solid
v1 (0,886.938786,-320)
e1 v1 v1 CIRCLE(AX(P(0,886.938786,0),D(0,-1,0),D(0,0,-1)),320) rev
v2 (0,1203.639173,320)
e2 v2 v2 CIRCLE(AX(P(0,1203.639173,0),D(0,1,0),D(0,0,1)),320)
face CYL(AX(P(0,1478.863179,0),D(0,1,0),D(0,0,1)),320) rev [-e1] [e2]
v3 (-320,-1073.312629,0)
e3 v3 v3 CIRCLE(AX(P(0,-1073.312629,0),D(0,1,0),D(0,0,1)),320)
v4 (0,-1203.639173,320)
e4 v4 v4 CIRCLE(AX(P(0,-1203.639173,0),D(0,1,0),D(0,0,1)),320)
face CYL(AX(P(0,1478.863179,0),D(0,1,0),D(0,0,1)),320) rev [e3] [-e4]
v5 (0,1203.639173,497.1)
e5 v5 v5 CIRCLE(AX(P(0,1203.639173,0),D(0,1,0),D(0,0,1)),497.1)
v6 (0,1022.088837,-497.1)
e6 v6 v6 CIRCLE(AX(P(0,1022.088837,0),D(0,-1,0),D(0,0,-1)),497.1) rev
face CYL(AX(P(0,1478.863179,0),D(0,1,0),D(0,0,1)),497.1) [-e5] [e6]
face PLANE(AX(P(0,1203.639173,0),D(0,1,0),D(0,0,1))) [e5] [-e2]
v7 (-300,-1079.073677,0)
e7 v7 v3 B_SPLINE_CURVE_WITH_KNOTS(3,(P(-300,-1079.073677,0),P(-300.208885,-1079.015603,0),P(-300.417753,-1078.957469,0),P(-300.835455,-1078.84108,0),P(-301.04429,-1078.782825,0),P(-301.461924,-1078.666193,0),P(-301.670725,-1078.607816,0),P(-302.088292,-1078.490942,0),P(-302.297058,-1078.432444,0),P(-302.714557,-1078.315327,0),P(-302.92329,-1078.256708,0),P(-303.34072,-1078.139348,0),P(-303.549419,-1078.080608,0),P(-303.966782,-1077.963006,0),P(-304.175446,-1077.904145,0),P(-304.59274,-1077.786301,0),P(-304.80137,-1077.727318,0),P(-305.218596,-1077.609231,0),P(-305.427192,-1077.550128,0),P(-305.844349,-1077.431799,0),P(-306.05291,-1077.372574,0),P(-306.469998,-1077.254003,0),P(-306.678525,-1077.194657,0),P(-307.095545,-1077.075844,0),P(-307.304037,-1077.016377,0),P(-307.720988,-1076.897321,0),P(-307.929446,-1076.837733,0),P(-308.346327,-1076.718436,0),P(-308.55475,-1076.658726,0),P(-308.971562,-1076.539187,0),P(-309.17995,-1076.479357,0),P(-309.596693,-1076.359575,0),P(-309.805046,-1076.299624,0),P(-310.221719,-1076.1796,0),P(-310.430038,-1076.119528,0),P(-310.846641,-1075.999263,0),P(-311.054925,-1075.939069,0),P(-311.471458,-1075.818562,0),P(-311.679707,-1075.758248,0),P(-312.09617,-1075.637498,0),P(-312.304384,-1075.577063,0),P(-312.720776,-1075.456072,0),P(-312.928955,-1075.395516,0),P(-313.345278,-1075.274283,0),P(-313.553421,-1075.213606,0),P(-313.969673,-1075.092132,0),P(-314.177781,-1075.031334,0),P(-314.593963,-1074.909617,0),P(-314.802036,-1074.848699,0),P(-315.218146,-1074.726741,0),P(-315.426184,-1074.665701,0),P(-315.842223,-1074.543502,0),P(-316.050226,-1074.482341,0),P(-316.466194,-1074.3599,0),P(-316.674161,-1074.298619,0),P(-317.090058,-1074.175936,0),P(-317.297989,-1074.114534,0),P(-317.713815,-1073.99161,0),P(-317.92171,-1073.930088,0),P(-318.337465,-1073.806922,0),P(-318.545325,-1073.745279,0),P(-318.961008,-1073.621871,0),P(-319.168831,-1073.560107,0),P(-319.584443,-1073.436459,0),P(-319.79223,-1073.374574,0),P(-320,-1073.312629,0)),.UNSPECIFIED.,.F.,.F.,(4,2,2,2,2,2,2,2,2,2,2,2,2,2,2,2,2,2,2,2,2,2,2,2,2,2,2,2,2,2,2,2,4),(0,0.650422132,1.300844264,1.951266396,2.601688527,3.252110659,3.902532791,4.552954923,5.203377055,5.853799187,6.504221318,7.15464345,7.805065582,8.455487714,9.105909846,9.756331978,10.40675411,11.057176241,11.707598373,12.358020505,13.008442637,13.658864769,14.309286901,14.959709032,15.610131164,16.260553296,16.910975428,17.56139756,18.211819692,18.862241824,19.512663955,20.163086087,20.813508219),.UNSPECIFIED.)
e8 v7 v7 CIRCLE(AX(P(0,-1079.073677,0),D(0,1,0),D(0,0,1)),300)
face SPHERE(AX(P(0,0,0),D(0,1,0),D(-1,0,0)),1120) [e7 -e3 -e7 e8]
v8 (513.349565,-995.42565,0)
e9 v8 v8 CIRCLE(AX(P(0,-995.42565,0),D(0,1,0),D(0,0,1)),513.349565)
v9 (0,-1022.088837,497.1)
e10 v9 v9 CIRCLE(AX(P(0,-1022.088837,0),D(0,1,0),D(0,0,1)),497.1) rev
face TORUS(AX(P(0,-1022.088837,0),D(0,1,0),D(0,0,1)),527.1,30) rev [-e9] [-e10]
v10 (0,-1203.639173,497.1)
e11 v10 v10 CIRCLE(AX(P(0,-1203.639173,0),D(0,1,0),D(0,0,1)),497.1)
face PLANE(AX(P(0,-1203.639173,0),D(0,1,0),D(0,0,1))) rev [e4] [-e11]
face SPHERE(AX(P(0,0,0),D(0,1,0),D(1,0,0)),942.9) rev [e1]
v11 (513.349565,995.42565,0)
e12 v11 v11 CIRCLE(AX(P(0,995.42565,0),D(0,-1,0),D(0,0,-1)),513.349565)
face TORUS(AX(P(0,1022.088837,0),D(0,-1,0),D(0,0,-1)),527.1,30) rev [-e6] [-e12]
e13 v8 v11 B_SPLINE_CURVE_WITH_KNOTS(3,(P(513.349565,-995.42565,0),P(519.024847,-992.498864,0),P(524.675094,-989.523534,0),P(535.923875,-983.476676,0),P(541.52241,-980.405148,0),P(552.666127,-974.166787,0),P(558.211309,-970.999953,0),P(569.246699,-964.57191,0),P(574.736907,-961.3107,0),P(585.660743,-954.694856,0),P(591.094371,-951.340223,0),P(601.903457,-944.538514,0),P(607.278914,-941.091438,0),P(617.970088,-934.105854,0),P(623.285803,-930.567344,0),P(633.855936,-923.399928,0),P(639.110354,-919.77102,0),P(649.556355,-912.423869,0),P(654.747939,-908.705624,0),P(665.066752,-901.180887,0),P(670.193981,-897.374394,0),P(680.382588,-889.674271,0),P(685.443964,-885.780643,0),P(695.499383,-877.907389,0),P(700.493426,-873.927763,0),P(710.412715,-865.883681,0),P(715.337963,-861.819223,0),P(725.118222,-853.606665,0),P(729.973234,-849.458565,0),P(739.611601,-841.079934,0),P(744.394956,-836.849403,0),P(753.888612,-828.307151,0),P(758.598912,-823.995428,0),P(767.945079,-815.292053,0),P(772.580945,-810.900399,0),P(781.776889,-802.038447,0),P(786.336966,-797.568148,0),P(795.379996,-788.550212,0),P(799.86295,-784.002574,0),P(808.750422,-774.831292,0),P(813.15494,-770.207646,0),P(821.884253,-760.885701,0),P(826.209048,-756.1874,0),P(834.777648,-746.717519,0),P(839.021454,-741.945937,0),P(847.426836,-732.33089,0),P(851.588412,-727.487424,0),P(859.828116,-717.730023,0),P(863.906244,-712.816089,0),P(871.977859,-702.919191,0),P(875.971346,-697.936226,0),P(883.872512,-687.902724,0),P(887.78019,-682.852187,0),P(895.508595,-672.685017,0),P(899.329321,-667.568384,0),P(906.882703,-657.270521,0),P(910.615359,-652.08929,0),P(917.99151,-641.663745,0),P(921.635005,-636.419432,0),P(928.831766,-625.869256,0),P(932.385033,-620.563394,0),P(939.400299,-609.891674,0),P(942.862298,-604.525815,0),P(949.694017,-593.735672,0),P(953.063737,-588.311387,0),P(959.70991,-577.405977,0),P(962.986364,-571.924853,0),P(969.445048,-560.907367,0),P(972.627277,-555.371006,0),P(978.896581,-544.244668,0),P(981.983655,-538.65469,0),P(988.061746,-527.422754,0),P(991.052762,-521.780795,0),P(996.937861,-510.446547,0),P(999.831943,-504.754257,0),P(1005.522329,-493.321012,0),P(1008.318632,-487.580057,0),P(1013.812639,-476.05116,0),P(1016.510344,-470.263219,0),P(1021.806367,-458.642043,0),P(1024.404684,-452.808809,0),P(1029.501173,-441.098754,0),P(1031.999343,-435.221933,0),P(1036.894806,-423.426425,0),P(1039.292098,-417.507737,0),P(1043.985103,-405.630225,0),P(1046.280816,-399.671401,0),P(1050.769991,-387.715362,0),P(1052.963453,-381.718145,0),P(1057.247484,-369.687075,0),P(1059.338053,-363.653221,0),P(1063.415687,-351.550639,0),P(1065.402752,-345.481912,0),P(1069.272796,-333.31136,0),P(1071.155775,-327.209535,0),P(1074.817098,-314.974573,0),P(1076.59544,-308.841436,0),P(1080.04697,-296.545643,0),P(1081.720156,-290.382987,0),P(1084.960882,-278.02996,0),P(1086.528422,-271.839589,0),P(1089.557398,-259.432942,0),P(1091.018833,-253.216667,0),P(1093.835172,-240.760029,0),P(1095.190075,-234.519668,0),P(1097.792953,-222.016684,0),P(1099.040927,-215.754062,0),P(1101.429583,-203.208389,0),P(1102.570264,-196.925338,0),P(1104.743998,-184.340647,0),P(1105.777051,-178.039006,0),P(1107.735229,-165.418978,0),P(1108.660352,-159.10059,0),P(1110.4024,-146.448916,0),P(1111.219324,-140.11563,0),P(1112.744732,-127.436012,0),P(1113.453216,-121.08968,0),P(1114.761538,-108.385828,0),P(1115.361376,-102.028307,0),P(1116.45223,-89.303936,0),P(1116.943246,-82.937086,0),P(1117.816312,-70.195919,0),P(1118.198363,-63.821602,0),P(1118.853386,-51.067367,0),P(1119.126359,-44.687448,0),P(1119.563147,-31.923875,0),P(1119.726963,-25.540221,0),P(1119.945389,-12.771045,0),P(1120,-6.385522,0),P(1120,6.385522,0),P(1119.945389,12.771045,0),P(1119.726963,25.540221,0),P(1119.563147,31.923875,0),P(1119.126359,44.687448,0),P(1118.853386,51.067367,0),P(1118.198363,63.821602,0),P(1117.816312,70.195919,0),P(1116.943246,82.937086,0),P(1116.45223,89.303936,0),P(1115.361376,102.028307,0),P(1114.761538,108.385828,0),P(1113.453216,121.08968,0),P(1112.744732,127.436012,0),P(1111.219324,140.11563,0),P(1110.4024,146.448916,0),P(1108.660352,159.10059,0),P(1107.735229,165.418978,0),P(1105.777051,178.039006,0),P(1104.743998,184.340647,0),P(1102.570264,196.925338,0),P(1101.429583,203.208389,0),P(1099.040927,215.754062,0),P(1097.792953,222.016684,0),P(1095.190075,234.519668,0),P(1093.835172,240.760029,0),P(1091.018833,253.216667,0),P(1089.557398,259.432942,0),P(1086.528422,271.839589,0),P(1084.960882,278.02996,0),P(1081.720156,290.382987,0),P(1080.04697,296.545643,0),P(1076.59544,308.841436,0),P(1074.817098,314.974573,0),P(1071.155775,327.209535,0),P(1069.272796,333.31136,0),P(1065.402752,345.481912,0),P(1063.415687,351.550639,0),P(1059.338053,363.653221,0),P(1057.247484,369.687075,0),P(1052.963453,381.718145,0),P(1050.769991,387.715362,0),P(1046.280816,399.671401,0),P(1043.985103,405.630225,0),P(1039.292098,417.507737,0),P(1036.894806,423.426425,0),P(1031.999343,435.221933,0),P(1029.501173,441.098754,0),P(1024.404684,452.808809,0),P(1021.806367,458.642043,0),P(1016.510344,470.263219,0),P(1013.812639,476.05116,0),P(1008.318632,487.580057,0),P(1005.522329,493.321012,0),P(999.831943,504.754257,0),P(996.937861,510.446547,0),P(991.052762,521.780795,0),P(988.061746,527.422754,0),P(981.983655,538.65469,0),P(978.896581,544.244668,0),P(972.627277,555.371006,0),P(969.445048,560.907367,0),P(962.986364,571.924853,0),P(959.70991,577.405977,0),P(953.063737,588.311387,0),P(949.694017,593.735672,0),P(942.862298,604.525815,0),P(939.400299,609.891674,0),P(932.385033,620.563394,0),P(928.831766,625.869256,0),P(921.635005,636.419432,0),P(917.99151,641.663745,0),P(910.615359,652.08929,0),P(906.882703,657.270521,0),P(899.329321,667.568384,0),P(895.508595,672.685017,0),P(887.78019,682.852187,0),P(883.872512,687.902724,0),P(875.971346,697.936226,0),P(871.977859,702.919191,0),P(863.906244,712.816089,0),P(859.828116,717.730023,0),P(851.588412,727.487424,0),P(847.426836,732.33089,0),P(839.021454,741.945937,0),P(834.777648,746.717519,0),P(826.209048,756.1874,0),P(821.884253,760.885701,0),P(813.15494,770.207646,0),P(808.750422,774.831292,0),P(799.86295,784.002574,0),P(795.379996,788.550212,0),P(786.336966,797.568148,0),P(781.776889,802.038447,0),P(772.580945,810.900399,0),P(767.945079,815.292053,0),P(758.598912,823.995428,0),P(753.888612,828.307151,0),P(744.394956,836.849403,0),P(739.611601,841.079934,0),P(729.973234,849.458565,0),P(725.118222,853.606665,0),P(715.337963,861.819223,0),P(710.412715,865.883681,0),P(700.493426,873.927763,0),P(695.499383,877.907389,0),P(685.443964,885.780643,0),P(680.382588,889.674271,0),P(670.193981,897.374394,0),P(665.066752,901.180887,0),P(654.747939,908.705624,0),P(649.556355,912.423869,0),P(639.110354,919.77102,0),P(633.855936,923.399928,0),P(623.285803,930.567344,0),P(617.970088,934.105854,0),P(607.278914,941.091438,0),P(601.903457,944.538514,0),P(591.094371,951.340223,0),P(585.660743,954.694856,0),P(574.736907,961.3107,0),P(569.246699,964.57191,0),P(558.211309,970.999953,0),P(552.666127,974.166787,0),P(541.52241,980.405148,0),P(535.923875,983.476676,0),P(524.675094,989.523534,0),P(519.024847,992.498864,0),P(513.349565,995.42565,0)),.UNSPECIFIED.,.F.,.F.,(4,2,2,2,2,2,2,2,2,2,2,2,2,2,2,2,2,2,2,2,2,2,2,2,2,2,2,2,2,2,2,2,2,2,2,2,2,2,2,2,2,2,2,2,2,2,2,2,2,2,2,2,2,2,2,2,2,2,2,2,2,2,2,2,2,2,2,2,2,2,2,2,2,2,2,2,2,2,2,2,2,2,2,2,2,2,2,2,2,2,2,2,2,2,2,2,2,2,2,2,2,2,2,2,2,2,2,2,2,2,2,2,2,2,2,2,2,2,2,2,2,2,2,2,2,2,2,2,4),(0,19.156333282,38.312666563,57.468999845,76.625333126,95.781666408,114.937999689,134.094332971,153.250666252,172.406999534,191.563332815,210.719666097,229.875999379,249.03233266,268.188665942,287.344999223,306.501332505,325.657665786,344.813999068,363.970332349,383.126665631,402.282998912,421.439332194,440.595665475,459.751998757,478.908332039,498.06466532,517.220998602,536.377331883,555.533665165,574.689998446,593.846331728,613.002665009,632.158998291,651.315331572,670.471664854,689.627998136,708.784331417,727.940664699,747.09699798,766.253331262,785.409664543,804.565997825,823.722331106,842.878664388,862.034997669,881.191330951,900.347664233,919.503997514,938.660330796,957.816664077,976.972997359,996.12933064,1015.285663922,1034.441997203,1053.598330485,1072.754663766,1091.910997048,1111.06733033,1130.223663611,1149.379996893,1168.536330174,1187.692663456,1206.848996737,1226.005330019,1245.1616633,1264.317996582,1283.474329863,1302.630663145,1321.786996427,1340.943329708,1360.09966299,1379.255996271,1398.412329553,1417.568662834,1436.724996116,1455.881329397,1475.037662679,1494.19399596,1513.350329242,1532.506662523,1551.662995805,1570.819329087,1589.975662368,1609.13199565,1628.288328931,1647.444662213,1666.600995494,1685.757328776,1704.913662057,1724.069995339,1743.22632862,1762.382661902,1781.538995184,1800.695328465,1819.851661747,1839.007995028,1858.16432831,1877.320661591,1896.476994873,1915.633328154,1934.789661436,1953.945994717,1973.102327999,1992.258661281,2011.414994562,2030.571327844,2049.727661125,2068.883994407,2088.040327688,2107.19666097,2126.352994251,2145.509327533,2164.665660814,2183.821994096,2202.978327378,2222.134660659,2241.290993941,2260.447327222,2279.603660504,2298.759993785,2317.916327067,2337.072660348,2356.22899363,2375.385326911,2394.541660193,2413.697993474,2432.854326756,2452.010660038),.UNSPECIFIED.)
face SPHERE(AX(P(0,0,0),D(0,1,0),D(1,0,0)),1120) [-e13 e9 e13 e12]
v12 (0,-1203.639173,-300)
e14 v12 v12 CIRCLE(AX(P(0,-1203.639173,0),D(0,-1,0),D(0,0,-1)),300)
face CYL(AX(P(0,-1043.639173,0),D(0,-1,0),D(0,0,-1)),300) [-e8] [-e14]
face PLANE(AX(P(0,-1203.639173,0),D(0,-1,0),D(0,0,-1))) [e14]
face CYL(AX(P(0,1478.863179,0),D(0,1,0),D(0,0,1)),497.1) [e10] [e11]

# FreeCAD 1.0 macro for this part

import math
import FreeCAD as App
import Part
import Sketcher

V = App.Vector


def edges_at(feature, points):
    """Names of the edges that pass closest to the given points."""
    edges = feature.Shape.Edges
    near = lambda p: min(range(len(edges)), key=lambda i: edges[i].distToShape(Part.Vertex(*p))[0])
    return sorted({f"Edge{near(p) + 1}" for p in points})

doc = App.newDocument("Part")
body = doc.addObject("PartDesign::Body", "Body")

sketch1 = body.newObject("Sketcher::SketchObject", "Sketch")
sketch1.AttachmentSupport = (doc.getObject("XY_Plane"), [""])
sketch1.MapMode = "FlatFace"
sketch1.addGeometry([
    Part.ArcOfCircle(Part.Circle(V(0, 0, 0), V(0, 0, 1), 1120), math.radians(73.4), math.radians(90)),
    Part.LineSegment(V(0, 1120, 0), V(0, 943, 0)),
    Part.ArcOfCircle(Part.Circle(V(0, 0, 0), V(0, 0, 1), 943), math.radians(-90), math.radians(90)),
    Part.LineSegment(V(0, -943, 0), V(0, -1120, 0)),
    Part.ArcOfCircle(Part.Circle(V(0, 0, 0), V(0, 0, 1), 1120), math.radians(-90), math.radians(-73.4)),
    Part.LineSegment(V(320, -1073, 0), V(320, -1204, 0)),
    Part.LineSegment(V(320, -1204, 0), V(497, -1204, 0)),
    Part.LineSegment(V(497, -1204, 0), V(497, -1004, 0)),
    Part.ArcOfCircle(Part.Circle(V(0, 0, 0), V(0, 0, 1), 1120), math.radians(-64), math.radians(64)),
    Part.LineSegment(V(497, 1004, 0), V(497, 1204, 0)),
    Part.LineSegment(V(497, 1204, 0), V(320, 1204, 0)),
    Part.LineSegment(V(320, 1204, 0), V(320, 1073, 0)),
], False)
sketch1.addConstraint([
    Sketcher.Constraint("Coincident", 0, 2, 1, 1),
    Sketcher.Constraint("Coincident", 1, 2, 2, 2),
    Sketcher.Constraint("Coincident", 2, 1, 3, 1),
    Sketcher.Constraint("Coincident", 3, 2, 4, 1),
    Sketcher.Constraint("Coincident", 4, 2, 5, 1),
    Sketcher.Constraint("Coincident", 5, 2, 6, 1),
    Sketcher.Constraint("Coincident", 6, 2, 7, 1),
    Sketcher.Constraint("Coincident", 7, 2, 8, 1),
    Sketcher.Constraint("Coincident", 8, 2, 9, 1),
    Sketcher.Constraint("Coincident", 9, 2, 10, 1),
    Sketcher.Constraint("Coincident", 10, 2, 11, 1),
    Sketcher.Constraint("Coincident", 11, 2, 0, 1),
    Sketcher.Constraint("Vertical", 1),
    Sketcher.Constraint("Vertical", 3),
    Sketcher.Constraint("Vertical", 5),
    Sketcher.Constraint("Horizontal", 6),
    Sketcher.Constraint("Vertical", 7),
    Sketcher.Constraint("Vertical", 9),
    Sketcher.Constraint("Horizontal", 10),
    Sketcher.Constraint("Vertical", 11),
    Sketcher.Constraint("Coincident", 0, 3, -1, 1),
    Sketcher.Constraint("Coincident", 2, 3, -1, 1),
    Sketcher.Constraint("Coincident", 4, 3, -1, 1),
    Sketcher.Constraint("Coincident", 8, 3, -1, 1),
    Sketcher.Constraint("Equal", 0, 4),
    Sketcher.Constraint("Equal", 4, 8),
    Sketcher.Constraint("Symmetric", 6, 2, 9, 2, -1),
    Sketcher.Constraint("PointOnObject", 1, 2, -2),
    Sketcher.Constraint("PointOnObject", 3, 2, -2),
    Sketcher.Constraint("Vertical", 5, 2, 10, 2),
    Sketcher.Constraint("Equal", 10, 1),
    Sketcher.Constraint("Radius", 0, 1120.0),
    Sketcher.Constraint("Radius", 2, 942.9),
    Sketcher.Constraint("DistanceY", 7, 1, 7, 2, 200.0),
    Sketcher.Constraint("DistanceX", -1, 1, 5, 2, 320.0),
])
revolution = body.newObject("PartDesign::Revolution", "Revolution")
revolution.Profile = sketch1
revolution.ReferenceAxis = (sketch1, ["V_Axis"])
revolution.Angle = 360

sketch2 = body.newObject("Sketcher::SketchObject", "Sketch001")
sketch2.AttachmentSupport = (doc.getObject("XZ_Plane"), [""])
sketch2.MapMode = "FlatFace"
sketch2.AttachmentOffset = App.Placement(V(0, 0, -83.639173), App.Rotation())
sketch2.addGeometry(Part.Circle(V(0, 0, 0), V(0, 0, 1), 320), False)
sketch2.addConstraint([
    Sketcher.Constraint("Coincident", 0, 3, -1, 1),
    Sketcher.Constraint("Diameter", 0, 640.0),
])
pocket1 = body.newObject("PartDesign::Pocket", "Pocket")
pocket1.Profile = sketch2
pocket1.Length = 1120
doc.recompute()

fillet = body.newObject("PartDesign::Fillet", "Fillet")
fillet.Base = (pocket1, edges_at(pocket1, [(0, 1003.639, -497.1), (0, -1003.639, -497.1)]))
fillet.Radius = 30

sketch3 = body.newObject("Sketcher::SketchObject", "Sketch002")
sketch3.AttachmentSupport = (doc.getObject("XZ_Plane"), [""])
sketch3.MapMode = "FlatFace"
sketch3.AttachmentOffset = App.Placement(V(0, 0, 1203.639173), App.Rotation())
sketch3.addGeometry(Part.Circle(V(0, 0, 0), V(0, 0, 1), 300), False)
sketch3.addConstraint([
    Sketcher.Constraint("Coincident", 0, 3, -1, 1),
    Sketcher.Constraint("Diameter", 0, 600.0),
])
pad1 = body.newObject("PartDesign::Pad", "Pad")
pad1.Profile = sketch3
pad1.Length = 160
pad1.Reversed = True

doc.recompute()
